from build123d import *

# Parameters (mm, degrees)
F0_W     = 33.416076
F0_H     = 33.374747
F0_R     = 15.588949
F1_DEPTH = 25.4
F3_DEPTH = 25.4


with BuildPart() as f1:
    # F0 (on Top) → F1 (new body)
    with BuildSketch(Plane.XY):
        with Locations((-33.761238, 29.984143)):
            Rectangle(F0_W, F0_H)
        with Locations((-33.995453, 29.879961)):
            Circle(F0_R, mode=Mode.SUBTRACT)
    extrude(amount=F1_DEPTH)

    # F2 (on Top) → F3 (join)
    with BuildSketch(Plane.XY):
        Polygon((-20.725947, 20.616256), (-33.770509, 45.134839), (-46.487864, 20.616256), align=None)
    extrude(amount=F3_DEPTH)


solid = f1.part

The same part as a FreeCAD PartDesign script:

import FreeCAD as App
import Part
import Sketcher

V = App.Vector
Q = App.Units.Quantity


def add_polygon(sketch, points):
    """Adds a closed chain of lines whose ends are joined by coincident constraints."""
    first, n = sketch.GeometryCount, len(points)
    for a, b in zip(points, points[1:] + points[:1]):
        sketch.addGeometry(Part.LineSegment(App.Vector(*a, 0), App.Vector(*b, 0)), False)
    for i in range(n):
        sketch.addConstraint(Sketcher.Constraint("Coincident", first + i, 2, first + (i + 1) % n, 1))

doc = App.newDocument("Part")
body = doc.addObject("PartDesign::Body", "Body")

# Sketch on XY plane
sketch1 = body.newObject("Sketcher::SketchObject", "Sketch")
sketch1.AttachmentSupport = (doc.getObject("XY_Plane"), [""])
sketch1.MapMode = "FlatFace"
add_polygon(sketch1, [(-50, 47), (-50, 13), (-17, 13), (-17, 47)])  # lines 0-3
sketch1.addGeometry(Part.Circle(V(-34, 30, 0), V(0, 0, 1), 16), False)  # 4
sketch1.addConstraint([
    Sketcher.Constraint("Vertical", 0),
    Sketcher.Constraint("Horizontal", 1),
    Sketcher.Constraint("Vertical", 2),
    Sketcher.Constraint("Horizontal", 3),
    Sketcher.Constraint("Diameter", 4, 31.177898),
    Sketcher.Constraint("DistanceX", 1, 2, -1, 1, 17.0532),
    Sketcher.Constraint("DistanceX", 1, 1, 1, 2, 33.416076),
    Sketcher.Constraint("DistanceY", 0, 2, 0, 1, 33.374747),
    Sketcher.Constraint("DistanceY", -1, 1, 4, 3, 29.879961),
    Sketcher.Constraint("DistanceY", -1, 1, 0, 2, 13.296769),
    Sketcher.Constraint("DistanceX", 4, 3, -1, 1, 33.995453),
])
pad1 = body.newObject("PartDesign::Pad", "Pad")
pad1.Profile = sketch1
pad1.Length = Q("1 in")

# Sketch on XY plane
sketch2 = body.newObject("Sketcher::SketchObject", "Sketch001")
sketch2.AttachmentSupport = (doc.getObject("XY_Plane"), [""])
sketch2.MapMode = "FlatFace"
add_polygon(sketch2, [(-21, 21), (-34, 45), (-46, 21)])  # lines 0-2
sketch2.addConstraint([
    Sketcher.Constraint("Horizontal", 2),
    Sketcher.Constraint("Distance", 1, 27.6205),
    Sketcher.Constraint("DistanceX", 2, 1, 2, 2, 25.761917),
    Sketcher.Constraint("DistanceX", 0, 2, -1, 1, 33.770509),
    Sketcher.Constraint("DistanceY", -1, 1, 0, 2, 45.134839),
    Sketcher.Constraint("DistanceX", 0, 2, 2, 2, 13.044562),
])
pad2 = body.newObject("PartDesign::Pad", "Pad001")
pad2.Profile = sketch2
pad2.Length = Q("1 in")

doc.recompute()
